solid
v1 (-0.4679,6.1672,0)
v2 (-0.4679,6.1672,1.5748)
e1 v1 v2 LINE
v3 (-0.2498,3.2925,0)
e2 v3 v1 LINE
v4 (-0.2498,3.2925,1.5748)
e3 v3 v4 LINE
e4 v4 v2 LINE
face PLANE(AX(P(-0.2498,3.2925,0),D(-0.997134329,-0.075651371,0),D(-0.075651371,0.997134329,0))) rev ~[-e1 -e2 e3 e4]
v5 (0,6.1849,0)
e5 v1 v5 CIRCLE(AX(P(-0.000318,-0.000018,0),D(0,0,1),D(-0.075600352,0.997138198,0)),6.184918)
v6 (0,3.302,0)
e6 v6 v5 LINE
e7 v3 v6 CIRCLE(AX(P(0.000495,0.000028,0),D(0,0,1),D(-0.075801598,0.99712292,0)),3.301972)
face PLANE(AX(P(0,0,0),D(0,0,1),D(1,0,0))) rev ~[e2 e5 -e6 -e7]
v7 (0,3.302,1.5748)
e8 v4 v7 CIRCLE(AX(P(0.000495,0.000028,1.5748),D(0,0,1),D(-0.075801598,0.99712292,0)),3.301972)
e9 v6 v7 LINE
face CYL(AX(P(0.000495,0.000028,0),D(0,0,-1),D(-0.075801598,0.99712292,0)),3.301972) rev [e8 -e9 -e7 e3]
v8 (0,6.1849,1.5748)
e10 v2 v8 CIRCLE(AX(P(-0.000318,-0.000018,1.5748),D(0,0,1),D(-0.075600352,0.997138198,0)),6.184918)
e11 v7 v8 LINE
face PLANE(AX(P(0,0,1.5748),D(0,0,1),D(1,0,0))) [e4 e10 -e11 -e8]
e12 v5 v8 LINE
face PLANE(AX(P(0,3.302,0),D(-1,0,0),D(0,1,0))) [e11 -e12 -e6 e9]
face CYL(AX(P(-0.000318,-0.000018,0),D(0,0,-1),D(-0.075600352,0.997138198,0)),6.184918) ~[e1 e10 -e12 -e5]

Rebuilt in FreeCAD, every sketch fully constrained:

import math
import FreeCAD as App
import Part
import Sketcher
from FreeCAD import Vector
Q = App.Units.Quantity

doc = App.newDocument("Part")
body = doc.addObject("PartDesign::Body", "Body")

# Sketch on XY plane
sketch1 = body.newObject("Sketcher::SketchObject", "Sketch")
sketch1.AttachmentSupport = (doc.getObject("XY_Plane"), [""])
sketch1.MapMode = "FlatFace"
sketch1.addGeometry(Part.LineSegment(Vector(-0.2498, 3.2925, 0), Vector(-0.4679, 6.1672, 0)), False)
sketch1.addGeometry(Part.ArcOfCircle(Part.Circle(Vector(0, 0, 0), Vector(0, 0, 1), 6.184924), math.radians(94.338668), math.radians(450)), False)
sketch1.addGeometry(Part.LineSegment(Vector(0, 6.1849, 0), Vector(0, 3.302, 0)), False)
sketch1.addGeometry(Part.ArcOfCircle(Part.Circle(Vector(0, 0, 0), Vector(0, 0, 1), 3.301962), math.radians(94.338684), math.radians(450)), False)
sketch1.addConstraint(Sketcher.Constraint("Coincident", 0, 2, 1, 1))
sketch1.addConstraint(Sketcher.Constraint("Coincident", 1, 2, 2, 1))
sketch1.addConstraint(Sketcher.Constraint("Coincident", 2, 2, 3, 2))
sketch1.addConstraint(Sketcher.Constraint("Coincident", 3, 1, 0, 1))
sketch1.addConstraint(Sketcher.Constraint("Vertical", 2))
sketch1.addConstraint(Sketcher.Constraint("Coincident", 1, 3, -1, 1))
sketch1.addConstraint(Sketcher.Constraint("Coincident", 3, 3, -1, 1))
sketch1.addConstraint(Sketcher.Constraint("PointOnObject", 1, 2, -2))
sketch1.addConstraint(Sketcher.Constraint("Radius", 3, Q("0.13 in")))
sketch1.addConstraint(Sketcher.Constraint("Radius", 1, Q("0.2435 in")))
sketch1.addConstraint(Sketcher.Constraint("DistanceX", 3, 1, -1, 1, 0.2498))
sketch1.addConstraint(Sketcher.Constraint("DistanceY", -1, 1, 0, 2, Q("0.2428 in")))
pad1 = body.newObject("PartDesign::Pad", "Pad")
pad1.Profile = sketch1
pad1.Length = Q("0.062 in")

doc.recompute()
